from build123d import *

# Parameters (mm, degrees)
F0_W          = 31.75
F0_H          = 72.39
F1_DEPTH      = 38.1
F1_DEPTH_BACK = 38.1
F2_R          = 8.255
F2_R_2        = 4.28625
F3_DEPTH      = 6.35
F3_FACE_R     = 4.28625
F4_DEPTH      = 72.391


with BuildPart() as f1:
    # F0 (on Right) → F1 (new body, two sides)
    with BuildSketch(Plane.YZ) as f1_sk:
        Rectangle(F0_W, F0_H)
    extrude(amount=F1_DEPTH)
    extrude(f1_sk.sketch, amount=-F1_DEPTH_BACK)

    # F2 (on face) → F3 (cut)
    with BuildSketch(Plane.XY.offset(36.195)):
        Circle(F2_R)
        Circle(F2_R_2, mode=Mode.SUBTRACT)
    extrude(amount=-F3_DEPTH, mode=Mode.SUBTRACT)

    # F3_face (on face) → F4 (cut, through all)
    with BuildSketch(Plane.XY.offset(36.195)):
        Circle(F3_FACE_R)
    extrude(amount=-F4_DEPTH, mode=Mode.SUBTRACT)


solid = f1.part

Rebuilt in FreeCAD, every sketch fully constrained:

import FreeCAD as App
import Part
import Sketcher
from FreeCAD import Vector
Q = App.Units.Quantity


def add_polygon(sketch, points):
    """Adds a closed chain of lines whose ends are joined by coincident constraints."""
    first, n = sketch.GeometryCount, len(points)
    for a, b in zip(points, points[1:] + points[:1]):
        sketch.addGeometry(Part.LineSegment(App.Vector(*a, 0), App.Vector(*b, 0)), False)
    for i in range(n):
        sketch.addConstraint(Sketcher.Constraint("Coincident", first + i, 2, first + (i + 1) % n, 1))

doc = App.newDocument("Part")
body = doc.addObject("PartDesign::Body", "Body")

# Sketch on YZ plane
sketch1 = body.newObject("Sketcher::SketchObject", "Sketch")
sketch1.AttachmentSupport = (doc.getObject("YZ_Plane"), [""])
sketch1.MapMode = "FlatFace"
add_polygon(sketch1, [(-15.875, 36.195), (-15.875, -36.195), (15.875, -36.195), (15.875, 36.195)])  # lines 0-3
sketch1.addConstraint([
    Sketcher.Constraint("Vertical", 0),
    Sketcher.Constraint("Horizontal", 1),
    Sketcher.Constraint("Vertical", 2),
    Sketcher.Constraint("Horizontal", 3),
    Sketcher.Constraint("Symmetric", 0, 2, 2, 2, -1, 1),
    Sketcher.Constraint("DistanceX", 1, 1, 1, 2, Q("1.25 in")),
    Sketcher.Constraint("DistanceY", 0, 2, 0, 1, Q("2.85 in")),
])
pad1 = body.newObject("PartDesign::Pad", "Pad")
pad1.Profile = sketch1
pad1.Type = "TwoLengths"
pad1.Length = Q("1.5 in")
pad1.Length2 = Q("1.5 in")

# Sketch on XY plane
sketch2 = body.newObject("Sketcher::SketchObject", "Sketch001")
sketch2.AttachmentSupport = (doc.getObject("XY_Plane"), [""])
sketch2.MapMode = "FlatFace"
sketch2.AttachmentOffset = App.Placement(Vector(0, 0, 1.425 * 25.4), App.Rotation())
sketch2.addGeometry([
    Part.Circle(Vector(0, 0, 0), Vector(0, 0, 1), 8.255),
    Part.Circle(Vector(0, 0, 0), Vector(0, 0, 1), 4.28625),
], False)
sketch2.addConstraint([
    Sketcher.Constraint("Coincident", 0, 3, -1, 1),
    Sketcher.Constraint("Coincident", 1, 3, -1, 1),
    Sketcher.Constraint("Diameter", 0, Q("0.65 in")),
    Sketcher.Constraint("Diameter", 1, Q("0.3375 in")),
])
pocket1 = body.newObject("PartDesign::Pocket", "Pocket")
pocket1.Profile = sketch2
pocket1.Length = Q("0.25 in")

# Sketch on XY plane
sketch3 = body.newObject("Sketcher::SketchObject", "Sketch002")
sketch3.AttachmentSupport = (doc.getObject("XY_Plane"), [""])
sketch3.MapMode = "FlatFace"
sketch3.AttachmentOffset = App.Placement(Vector(0, 0, 1.425 * 25.4), App.Rotation())
sketch3.addGeometry(Part.Circle(Vector(0, 0, 0), Vector(0, 0, 1), 4.28625), False)
sketch3.addConstraint([
    Sketcher.Constraint("Coincident", 0, 3, -1, 1),
    Sketcher.Constraint("Diameter", 0, Q("0.3375 in")),
])
pocket2 = body.newObject("PartDesign::Pocket", "Pocket001")
pocket2.Profile = sketch3
pocket2.Type = "ThroughAll"

doc.recompute()
